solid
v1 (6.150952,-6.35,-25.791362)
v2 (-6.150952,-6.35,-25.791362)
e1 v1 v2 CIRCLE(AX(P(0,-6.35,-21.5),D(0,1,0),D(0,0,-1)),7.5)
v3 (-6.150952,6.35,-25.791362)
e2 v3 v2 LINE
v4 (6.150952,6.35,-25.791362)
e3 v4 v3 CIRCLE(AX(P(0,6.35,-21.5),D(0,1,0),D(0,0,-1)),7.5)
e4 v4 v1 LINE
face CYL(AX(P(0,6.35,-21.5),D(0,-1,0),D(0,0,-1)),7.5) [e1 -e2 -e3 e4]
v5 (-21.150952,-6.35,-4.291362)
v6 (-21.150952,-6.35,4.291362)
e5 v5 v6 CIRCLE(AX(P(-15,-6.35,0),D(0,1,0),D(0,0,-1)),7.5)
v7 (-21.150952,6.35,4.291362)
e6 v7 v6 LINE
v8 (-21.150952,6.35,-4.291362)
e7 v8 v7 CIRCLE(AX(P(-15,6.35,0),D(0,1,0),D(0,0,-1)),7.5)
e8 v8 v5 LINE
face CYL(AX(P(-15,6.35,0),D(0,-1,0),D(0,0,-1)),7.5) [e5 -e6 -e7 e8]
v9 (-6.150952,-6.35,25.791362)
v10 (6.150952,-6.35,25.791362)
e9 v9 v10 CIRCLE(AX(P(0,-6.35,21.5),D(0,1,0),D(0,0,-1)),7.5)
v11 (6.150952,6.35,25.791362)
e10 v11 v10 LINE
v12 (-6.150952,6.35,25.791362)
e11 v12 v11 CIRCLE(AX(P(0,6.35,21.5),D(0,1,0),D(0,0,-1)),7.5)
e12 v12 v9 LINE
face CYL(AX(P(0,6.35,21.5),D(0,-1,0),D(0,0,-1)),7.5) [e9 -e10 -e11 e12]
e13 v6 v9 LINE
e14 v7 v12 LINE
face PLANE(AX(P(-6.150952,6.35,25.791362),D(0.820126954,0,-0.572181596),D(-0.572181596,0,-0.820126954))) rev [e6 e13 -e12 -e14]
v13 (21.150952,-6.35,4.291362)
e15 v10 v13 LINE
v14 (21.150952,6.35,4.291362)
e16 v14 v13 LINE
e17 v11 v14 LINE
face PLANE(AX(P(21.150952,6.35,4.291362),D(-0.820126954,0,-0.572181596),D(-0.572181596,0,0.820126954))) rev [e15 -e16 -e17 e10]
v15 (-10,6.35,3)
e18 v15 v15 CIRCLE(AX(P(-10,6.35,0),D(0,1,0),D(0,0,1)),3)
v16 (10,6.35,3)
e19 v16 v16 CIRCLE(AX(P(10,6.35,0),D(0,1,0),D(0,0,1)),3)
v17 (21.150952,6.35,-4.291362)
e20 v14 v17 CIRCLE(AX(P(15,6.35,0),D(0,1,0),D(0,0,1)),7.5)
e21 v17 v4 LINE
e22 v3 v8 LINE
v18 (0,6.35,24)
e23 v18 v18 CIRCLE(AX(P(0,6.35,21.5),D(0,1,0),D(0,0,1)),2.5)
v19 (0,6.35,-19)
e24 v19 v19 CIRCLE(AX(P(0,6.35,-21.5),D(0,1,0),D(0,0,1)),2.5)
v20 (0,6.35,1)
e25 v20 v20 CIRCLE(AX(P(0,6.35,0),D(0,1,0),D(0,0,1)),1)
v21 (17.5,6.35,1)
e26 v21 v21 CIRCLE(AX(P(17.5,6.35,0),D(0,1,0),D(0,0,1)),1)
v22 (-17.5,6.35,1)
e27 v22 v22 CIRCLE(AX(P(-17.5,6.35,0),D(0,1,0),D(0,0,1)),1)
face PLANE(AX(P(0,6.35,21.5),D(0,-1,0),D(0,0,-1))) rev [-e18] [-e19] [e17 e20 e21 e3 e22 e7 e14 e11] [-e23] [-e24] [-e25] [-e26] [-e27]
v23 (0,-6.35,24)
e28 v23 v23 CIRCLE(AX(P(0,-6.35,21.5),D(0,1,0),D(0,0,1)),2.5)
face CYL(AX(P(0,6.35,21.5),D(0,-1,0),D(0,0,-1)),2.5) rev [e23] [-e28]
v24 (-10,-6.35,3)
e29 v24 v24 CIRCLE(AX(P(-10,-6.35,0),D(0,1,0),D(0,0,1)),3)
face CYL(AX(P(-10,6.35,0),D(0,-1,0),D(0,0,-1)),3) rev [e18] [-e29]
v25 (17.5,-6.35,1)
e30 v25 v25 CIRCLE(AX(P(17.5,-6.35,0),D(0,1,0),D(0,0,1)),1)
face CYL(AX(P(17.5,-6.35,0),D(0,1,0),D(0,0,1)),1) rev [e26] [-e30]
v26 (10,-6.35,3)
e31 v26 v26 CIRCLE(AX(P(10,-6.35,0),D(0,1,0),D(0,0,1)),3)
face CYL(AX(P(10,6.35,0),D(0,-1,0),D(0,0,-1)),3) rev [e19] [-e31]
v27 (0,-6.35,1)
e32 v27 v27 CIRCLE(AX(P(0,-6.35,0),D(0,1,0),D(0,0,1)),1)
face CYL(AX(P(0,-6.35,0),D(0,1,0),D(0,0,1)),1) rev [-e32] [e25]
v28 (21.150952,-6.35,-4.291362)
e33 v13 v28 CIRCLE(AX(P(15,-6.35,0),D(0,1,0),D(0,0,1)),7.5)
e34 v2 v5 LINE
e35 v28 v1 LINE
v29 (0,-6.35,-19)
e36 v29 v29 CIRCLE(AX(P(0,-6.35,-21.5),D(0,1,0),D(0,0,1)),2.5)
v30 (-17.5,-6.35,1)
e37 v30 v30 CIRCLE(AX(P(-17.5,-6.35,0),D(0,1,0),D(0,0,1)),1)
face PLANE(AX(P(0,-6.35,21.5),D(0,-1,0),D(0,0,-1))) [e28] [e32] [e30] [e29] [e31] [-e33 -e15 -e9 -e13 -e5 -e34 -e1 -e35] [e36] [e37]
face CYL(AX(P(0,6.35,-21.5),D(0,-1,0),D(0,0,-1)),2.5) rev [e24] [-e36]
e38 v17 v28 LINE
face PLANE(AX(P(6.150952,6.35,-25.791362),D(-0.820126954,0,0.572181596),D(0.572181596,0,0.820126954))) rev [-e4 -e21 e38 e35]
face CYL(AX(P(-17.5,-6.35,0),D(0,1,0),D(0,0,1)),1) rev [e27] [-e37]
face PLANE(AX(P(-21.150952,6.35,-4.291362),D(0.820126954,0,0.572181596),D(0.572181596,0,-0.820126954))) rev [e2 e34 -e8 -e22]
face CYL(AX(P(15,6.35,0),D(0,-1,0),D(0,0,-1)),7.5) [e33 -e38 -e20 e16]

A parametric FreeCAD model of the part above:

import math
import FreeCAD as App
import Part
import Sketcher
Q = App.Units.Quantity

doc = App.newDocument("Part")
params = doc.addObject("Spreadsheet::Sheet", "Params")
for row, (alias, value) in enumerate([
    ("sketch1_diameter", "5 mm"),
    ("sketch1_diameter2", "6 mm"),
    ("sketch1_radius", "7.5 mm"),
    ("pad1_length", "12.7 mm"),
    ("sketch2_diameter", "2 mm"),
], start=1):
    params.set(f"A{row}", alias)
    params.set(f"B{row}", "=" + value)
    params.setAlias(f"B{row}", alias)

body = doc.addObject("PartDesign::Body", "Body")

sketch1 = doc.addObject("Sketcher::SketchObject", "Sketch")
body.addObject(sketch1)
sketch1.AttachmentSupport = (doc.XZ_Plane, [""])
sketch1.MapMode = "FlatFace"
sketch1.addGeometry(Part.LineSegment(App.Vector(-6.2, -25.8, 0), App.Vector(-21.2, -4.3, 0)), False)
sketch1.addGeometry(Part.ArcOfCircle(Part.Circle(App.Vector(-15, 0, 0), App.Vector(0, 0, 1), 7.5), math.radians(145), math.radians(215)), False)
sketch1.addGeometry(Part.LineSegment(App.Vector(-21.2, 4.3, 0), App.Vector(-6.2, 25.8, 0)), False)
sketch1.addGeometry(Part.ArcOfCircle(Part.Circle(App.Vector(0, 21.5, 0), App.Vector(0, 0, 1), 7.5), math.radians(35), math.radians(145)), False)
sketch1.addGeometry(Part.LineSegment(App.Vector(6.2, 25.8, 0), App.Vector(21.2, 4.3, 0)), False)
sketch1.addGeometry(Part.ArcOfCircle(Part.Circle(App.Vector(15, 0, 0), App.Vector(0, 0, 1), 7.5), math.radians(-35), math.radians(35)), False)
sketch1.addGeometry(Part.LineSegment(App.Vector(21.2, -4.3, 0), App.Vector(6.2, -25.8, 0)), False)
sketch1.addGeometry(Part.ArcOfCircle(Part.Circle(App.Vector(0, -21.5, 0), App.Vector(0, 0, 1), 7.5), math.radians(-145), math.radians(-35)), False)
sketch1.addGeometry(Part.Circle(App.Vector(0, 21.5, 0), App.Vector(0, 0, 1), 2.5), False)
sketch1.addGeometry(Part.Circle(App.Vector(10, 0, 0), App.Vector(0, 0, 1), 3), False)
sketch1.addGeometry(Part.Circle(App.Vector(-10, 0, 0), App.Vector(0, 0, 1), 3), False)
sketch1.addGeometry(Part.Circle(App.Vector(0, -21.5, 0), App.Vector(0, 0, 1), 2.5), False)
sketch1.addConstraint(Sketcher.Constraint("Tangent", 0, 2, 1, 2))
sketch1.addConstraint(Sketcher.Constraint("Tangent", 1, 1, 2, 1))
sketch1.addConstraint(Sketcher.Constraint("Tangent", 2, 2, 3, 2))
sketch1.addConstraint(Sketcher.Constraint("Tangent", 3, 1, 4, 1))
sketch1.addConstraint(Sketcher.Constraint("Tangent", 4, 2, 5, 2))
sketch1.addConstraint(Sketcher.Constraint("Tangent", 5, 1, 6, 1))
sketch1.addConstraint(Sketcher.Constraint("Tangent", 6, 2, 7, 2))
sketch1.addConstraint(Sketcher.Constraint("Tangent", 7, 1, 0, 1))
sketch1.addConstraint(Sketcher.Constraint("Coincident", 8, 3, 3, 3))
sketch1.addConstraint(Sketcher.Constraint("Coincident", 11, 3, 7, 3))
sketch1.addConstraint(Sketcher.Constraint("Equal", 1, 3))
sketch1.addConstraint(Sketcher.Constraint("Equal", 3, 5))
sketch1.addConstraint(Sketcher.Constraint("Equal", 5, 7))
sketch1.addConstraint(Sketcher.Constraint("Equal", 9, 10))
sketch1.addConstraint(Sketcher.Constraint("Equal", 8, 11))
sketch1.addConstraint(Sketcher.Constraint("Symmetric", 1, 3, 5, 3, -1, 1))
sketch1.addConstraint(Sketcher.Constraint("Symmetric", 3, 3, 7, 3, -1, 1))
sketch1.addConstraint(Sketcher.Constraint("Symmetric", 9, 3, 10, 3, -1, 1))
sketch1.addConstraint(Sketcher.Constraint("Symmetric", 2, 2, 3, 1, -2))
sketch1.addConstraint(Sketcher.Constraint("PointOnObject", 9, 3, -1))
sketch1.addConstraint(Sketcher.Constraint("Diameter", 8, Q("5 mm")))
sketch1.addConstraint(Sketcher.Constraint("Diameter", 9, Q("6 mm")))
sketch1.addConstraint(Sketcher.Constraint("Radius", 1, Q("7.5 mm")))
sketch1.addConstraint(Sketcher.Constraint("DistanceX", 1, 3, -1, 1, Q("15 mm")))
sketch1.addConstraint(Sketcher.Constraint("DistanceX", -1, 1, 9, 3, Q("10 mm")))
sketch1.addConstraint(Sketcher.Constraint("DistanceY", 7, 3, 3, 3, Q("43 mm")))
sketch1.setExpression("Constraints[20]", "Params.sketch1_diameter")
sketch1.setExpression("Constraints[21]", "Params.sketch1_diameter2")
sketch1.setExpression("Constraints[22]", "Params.sketch1_radius")
pad1 = doc.addObject("PartDesign::Pad", "Pad")
body.addObject(pad1)
pad1.Profile = sketch1
pad1.setExpression("Length", "Params.pad1_length")
pad1.Midplane = True

sketch2 = doc.addObject("Sketcher::SketchObject", "Sketch001")
body.addObject(sketch2)
sketch2.AttachmentSupport = (doc.XZ_Plane, [""])
sketch2.MapMode = "FlatFace"
sketch2.AttachmentOffset = App.Placement(App.Vector(0, 0, -6.35), App.Rotation())
sketch2.addGeometry(Part.Circle(App.Vector(-17.5, 0, 0), App.Vector(0, 0, 1), 1), False)
sketch2.addGeometry(Part.Circle(App.Vector(17.5, 0, 0), App.Vector(0, 0, 1), 1), False)
sketch2.addGeometry(Part.Circle(App.Vector(0, 0, 0), App.Vector(0, 0, 1), 1), False)
sketch2.addConstraint(Sketcher.Constraint("Coincident", 2, 3, -1, 1))
sketch2.addConstraint(Sketcher.Constraint("Equal", 0, 1))
sketch2.addConstraint(Sketcher.Constraint("Equal", 1, 2))
sketch2.addConstraint(Sketcher.Constraint("Symmetric", 0, 3, 1, 3, -1, 1))
sketch2.addConstraint(Sketcher.Constraint("PointOnObject", 0, 3, -1))
sketch2.addConstraint(Sketcher.Constraint("Diameter", 0, Q("2 mm")))
sketch2.addConstraint(Sketcher.Constraint("DistanceX", 0, 3, 1, 3, Q("35 mm")))
sketch2.setExpression("Constraints[5]", "Params.sketch2_diameter")
pocket1 = doc.addObject("PartDesign::Pocket", "Pocket")
body.addObject(pocket1)
pocket1.Profile = sketch2
pocket1.Type = "ThroughAll"
pocket1.Reversed = True

doc.recompute()
